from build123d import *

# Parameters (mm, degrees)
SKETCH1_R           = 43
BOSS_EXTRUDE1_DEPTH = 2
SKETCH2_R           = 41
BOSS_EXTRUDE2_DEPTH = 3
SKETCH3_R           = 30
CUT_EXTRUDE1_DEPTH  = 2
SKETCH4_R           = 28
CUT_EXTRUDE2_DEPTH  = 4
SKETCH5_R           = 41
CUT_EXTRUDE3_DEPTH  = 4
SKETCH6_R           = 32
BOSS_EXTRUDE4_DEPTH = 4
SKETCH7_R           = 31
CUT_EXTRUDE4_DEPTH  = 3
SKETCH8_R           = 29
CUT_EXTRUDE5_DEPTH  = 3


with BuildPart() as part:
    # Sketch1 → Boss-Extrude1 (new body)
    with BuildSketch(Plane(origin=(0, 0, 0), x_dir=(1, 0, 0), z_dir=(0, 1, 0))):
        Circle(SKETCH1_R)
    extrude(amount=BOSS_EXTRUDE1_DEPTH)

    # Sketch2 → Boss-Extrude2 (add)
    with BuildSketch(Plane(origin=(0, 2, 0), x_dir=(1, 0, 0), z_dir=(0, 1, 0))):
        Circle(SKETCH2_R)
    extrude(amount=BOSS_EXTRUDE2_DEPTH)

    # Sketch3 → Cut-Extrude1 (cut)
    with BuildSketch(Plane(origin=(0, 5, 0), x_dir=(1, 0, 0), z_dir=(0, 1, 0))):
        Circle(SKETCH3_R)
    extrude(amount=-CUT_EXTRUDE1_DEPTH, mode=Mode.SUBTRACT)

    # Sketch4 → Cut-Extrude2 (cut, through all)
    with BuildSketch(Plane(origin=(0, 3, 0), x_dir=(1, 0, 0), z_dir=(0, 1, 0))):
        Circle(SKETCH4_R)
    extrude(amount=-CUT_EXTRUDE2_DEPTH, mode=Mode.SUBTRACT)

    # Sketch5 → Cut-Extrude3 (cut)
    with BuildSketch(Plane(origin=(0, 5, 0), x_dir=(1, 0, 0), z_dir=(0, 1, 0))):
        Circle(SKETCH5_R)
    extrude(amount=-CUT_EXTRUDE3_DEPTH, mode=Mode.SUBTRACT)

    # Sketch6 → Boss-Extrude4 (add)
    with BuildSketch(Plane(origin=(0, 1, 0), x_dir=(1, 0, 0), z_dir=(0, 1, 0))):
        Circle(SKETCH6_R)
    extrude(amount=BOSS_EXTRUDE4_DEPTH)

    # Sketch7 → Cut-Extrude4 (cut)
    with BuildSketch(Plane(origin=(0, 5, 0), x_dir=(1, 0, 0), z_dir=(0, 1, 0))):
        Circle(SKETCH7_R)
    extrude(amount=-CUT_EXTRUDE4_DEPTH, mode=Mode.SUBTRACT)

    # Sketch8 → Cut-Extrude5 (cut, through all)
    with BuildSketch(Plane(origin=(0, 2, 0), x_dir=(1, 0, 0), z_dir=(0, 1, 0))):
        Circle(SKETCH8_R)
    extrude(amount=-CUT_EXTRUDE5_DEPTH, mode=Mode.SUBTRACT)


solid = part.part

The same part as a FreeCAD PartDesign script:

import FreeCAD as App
import Part
import Sketcher
from FreeCAD import Vector

doc = App.newDocument("Part")
params = doc.addObject("Spreadsheet::Sheet", "Params")
for row, (alias, value) in enumerate([
    ("sketch1_diameter", "86 mm"),
    ("pad1_length", "2 mm"),
    ("sketch2_diameter", "82 mm"),
    ("pad2_length", "3 mm"),
    ("sketch3_diameter", "60 mm"),
    ("pocket1_length", "2 mm"),
    ("sketch4_diameter", "56 mm"),
    ("sketch5_diameter", "82 mm"),
    ("pocket3_length", "4 mm"),
    ("sketch6_diameter", "64 mm"),
    ("pad3_length", "4 mm"),
    ("sketch7_diameter", "62 mm"),
    ("pocket4_length", "3 mm"),
    ("sketch8_diameter", "58 mm"),
], start=1):
    params.set(f"A{row}", alias)
    params.set(f"B{row}", "=" + value)
    params.setAlias(f"B{row}", alias)

body = doc.addObject("PartDesign::Body", "Body")

# Sketch on XZ plane
sketch1 = doc.addObject("Sketcher::SketchObject", "Sketch")
body.addObject(sketch1)
sketch1.AttachmentSupport = (doc.XZ_Plane, [""])
sketch1.MapMode = "FlatFace"
sketch1.addGeometry(Part.Circle(Vector(0, 0, 0), Vector(0, 0, 1), 43), False)
sketch1.addConstraint([
    Sketcher.Constraint("Coincident", 0, 3, -1, 1),
    Sketcher.Constraint("Diameter", 0, 86.0),
])
sketch1.setExpression("Constraints[1]", "Params.sketch1_diameter")
pad1 = doc.addObject("PartDesign::Pad", "Pad")
body.addObject(pad1)
pad1.Profile = sketch1
pad1.setExpression("Length", "Params.pad1_length")
pad1.Reversed = True

# Sketch on XZ plane
sketch2 = doc.addObject("Sketcher::SketchObject", "Sketch001")
body.addObject(sketch2)
sketch2.AttachmentSupport = (doc.XZ_Plane, [""])
sketch2.MapMode = "FlatFace"
sketch2.AttachmentOffset = App.Placement(Vector(0, 0, -2), App.Rotation())
sketch2.addGeometry(Part.Circle(Vector(0, 0, 0), Vector(0, 0, 1), 41), False)
sketch2.addConstraint([
    Sketcher.Constraint("Coincident", 0, 3, -1, 1),
    Sketcher.Constraint("Diameter", 0, 82.0),
])
sketch2.setExpression("Constraints[1]", "Params.sketch2_diameter")
pad2 = doc.addObject("PartDesign::Pad", "Pad001")
body.addObject(pad2)
pad2.Profile = sketch2
pad2.setExpression("Length", "Params.pad2_length")
pad2.Reversed = True

# Sketch on XZ plane
sketch3 = doc.addObject("Sketcher::SketchObject", "Sketch002")
body.addObject(sketch3)
sketch3.AttachmentSupport = (doc.XZ_Plane, [""])
sketch3.MapMode = "FlatFace"
sketch3.AttachmentOffset = App.Placement(Vector(0, 0, -5), App.Rotation())
sketch3.addGeometry(Part.Circle(Vector(0, 0, 0), Vector(0, 0, 1), 30), False)
sketch3.addConstraint([
    Sketcher.Constraint("Coincident", 0, 3, -1, 1),
    Sketcher.Constraint("Diameter", 0, 60.0),
])
sketch3.setExpression("Constraints[1]", "Params.sketch3_diameter")
pocket1 = doc.addObject("PartDesign::Pocket", "Pocket")
body.addObject(pocket1)
pocket1.Profile = sketch3
pocket1.setExpression("Length", "Params.pocket1_length")
pocket1.Reversed = True

# Sketch on XZ plane
sketch4 = doc.addObject("Sketcher::SketchObject", "Sketch003")
body.addObject(sketch4)
sketch4.AttachmentSupport = (doc.XZ_Plane, [""])
sketch4.MapMode = "FlatFace"
sketch4.AttachmentOffset = App.Placement(Vector(0, 0, -3), App.Rotation())
sketch4.addGeometry(Part.Circle(Vector(0, 0, 0), Vector(0, 0, 1), 28), False)
sketch4.addConstraint([
    Sketcher.Constraint("Coincident", 0, 3, -1, 1),
    Sketcher.Constraint("Diameter", 0, 56.0),
])
sketch4.setExpression("Constraints[1]", "Params.sketch4_diameter")
pocket2 = doc.addObject("PartDesign::Pocket", "Pocket001")
body.addObject(pocket2)
pocket2.Profile = sketch4
pocket2.Type = "ThroughAll"
pocket2.Reversed = True

# Sketch on XZ plane
sketch5 = doc.addObject("Sketcher::SketchObject", "Sketch004")
body.addObject(sketch5)
sketch5.AttachmentSupport = (doc.XZ_Plane, [""])
sketch5.MapMode = "FlatFace"
sketch5.AttachmentOffset = App.Placement(Vector(0, 0, -5), App.Rotation())
sketch5.addGeometry(Part.Circle(Vector(0, 0, 0), Vector(0, 0, 1), 41), False)
sketch5.addConstraint([
    Sketcher.Constraint("Coincident", 0, 3, -1, 1),
    Sketcher.Constraint("Diameter", 0, 82.0),
])
sketch5.setExpression("Constraints[1]", "Params.sketch5_diameter")
pocket3 = doc.addObject("PartDesign::Pocket", "Pocket002")
body.addObject(pocket3)
pocket3.Profile = sketch5
pocket3.setExpression("Length", "Params.pocket3_length")
pocket3.Reversed = True

# Sketch on XZ plane
sketch6 = doc.addObject("Sketcher::SketchObject", "Sketch005")
body.addObject(sketch6)
sketch6.AttachmentSupport = (doc.XZ_Plane, [""])
sketch6.MapMode = "FlatFace"
sketch6.AttachmentOffset = App.Placement(Vector(0, 0, -1), App.Rotation())
sketch6.addGeometry(Part.Circle(Vector(0, 0, 0), Vector(0, 0, 1), 32), False)
sketch6.addConstraint([
    Sketcher.Constraint("Coincident", 0, 3, -1, 1),
    Sketcher.Constraint("Diameter", 0, 64.0),
])
sketch6.setExpression("Constraints[1]", "Params.sketch6_diameter")
pad3 = doc.addObject("PartDesign::Pad", "Pad002")
body.addObject(pad3)
pad3.Profile = sketch6
pad3.setExpression("Length", "Params.pad3_length")
pad3.Reversed = True

# Sketch on XZ plane
sketch7 = doc.addObject("Sketcher::SketchObject", "Sketch006")
body.addObject(sketch7)
sketch7.AttachmentSupport = (doc.XZ_Plane, [""])
sketch7.MapMode = "FlatFace"
sketch7.AttachmentOffset = App.Placement(Vector(0, 0, -5), App.Rotation())
sketch7.addGeometry(Part.Circle(Vector(0, 0, 0), Vector(0, 0, 1), 31), False)
sketch7.addConstraint([
    Sketcher.Constraint("Coincident", 0, 3, -1, 1),
    Sketcher.Constraint("Diameter", 0, 62.0),
])
sketch7.setExpression("Constraints[1]", "Params.sketch7_diameter")
pocket4 = doc.addObject("PartDesign::Pocket", "Pocket003")
body.addObject(pocket4)
pocket4.Profile = sketch7
pocket4.setExpression("Length", "Params.pocket4_length")
pocket4.Reversed = True

# Sketch on XZ plane
sketch8 = doc.addObject("Sketcher::SketchObject", "Sketch007")
body.addObject(sketch8)
sketch8.AttachmentSupport = (doc.XZ_Plane, [""])
sketch8.MapMode = "FlatFace"
sketch8.AttachmentOffset = App.Placement(Vector(0, 0, -2), App.Rotation())
sketch8.addGeometry(Part.Circle(Vector(0, 0, 0), Vector(0, 0, 1), 29), False)
sketch8.addConstraint([
    Sketcher.Constraint("Coincident", 0, 3, -1, 1),
    Sketcher.Constraint("Diameter", 0, 58.0),
])
sketch8.setExpression("Constraints[1]", "Params.sketch8_diameter")
pocket5 = doc.addObject("PartDesign::Pocket", "Pocket004")
body.addObject(pocket5)
pocket5.Profile = sketch8
pocket5.Type = "ThroughAll"
pocket5.Reversed = True

doc.recompute()
